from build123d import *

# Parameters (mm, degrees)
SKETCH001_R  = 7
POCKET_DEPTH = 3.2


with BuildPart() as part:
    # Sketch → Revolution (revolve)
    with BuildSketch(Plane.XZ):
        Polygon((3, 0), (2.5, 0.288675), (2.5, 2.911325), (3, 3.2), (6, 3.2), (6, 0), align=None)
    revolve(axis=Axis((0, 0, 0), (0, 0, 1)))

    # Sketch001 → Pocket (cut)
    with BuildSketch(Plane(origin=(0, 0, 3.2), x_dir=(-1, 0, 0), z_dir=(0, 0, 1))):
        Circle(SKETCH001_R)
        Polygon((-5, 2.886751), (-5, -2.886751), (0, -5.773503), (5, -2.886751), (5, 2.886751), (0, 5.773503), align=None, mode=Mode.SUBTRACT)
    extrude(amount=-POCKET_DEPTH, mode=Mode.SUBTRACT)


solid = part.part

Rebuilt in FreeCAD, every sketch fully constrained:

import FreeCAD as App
import Part
import Sketcher

V = App.Vector
Q = App.Units.Quantity

doc = App.newDocument("Part")
body = doc.addObject("PartDesign::Body", "Body")

# Sketch on XZ plane
sketch1 = body.newObject("Sketcher::SketchObject", "Sketch")
sketch1.AttachmentSupport = (doc.getObject("XZ_Plane"), [""])
sketch1.MapMode = "FlatFace"
sketch1.addGeometry(Part.LineSegment(V(2.5, 0.288675, 0), V(3, 0, 0)), False)
sketch1.addGeometry(Part.LineSegment(V(3, 0, 0), V(6, 0, 0)), False)
sketch1.addGeometry(Part.LineSegment(V(6, 0, 0), V(6, 3.2, 0)), False)
sketch1.addGeometry(Part.LineSegment(V(6, 3.2, 0), V(3, 3.2, 0)), False)
sketch1.addGeometry(Part.LineSegment(V(3, 3.2, 0), V(2.5, 2.911325, 0)), False)
sketch1.addGeometry(Part.LineSegment(V(2.5, 2.911325, 0), V(2.5, 0.288675, 0)), False)
sketch1.addConstraint(Sketcher.Constraint("Coincident", 0, 2, 1, 1))
sketch1.addConstraint(Sketcher.Constraint("Coincident", 1, 2, 2, 1))
sketch1.addConstraint(Sketcher.Constraint("Coincident", 2, 2, 3, 1))
sketch1.addConstraint(Sketcher.Constraint("Coincident", 3, 2, 4, 1))
sketch1.addConstraint(Sketcher.Constraint("Coincident", 4, 2, 5, 1))
sketch1.addConstraint(Sketcher.Constraint("Coincident", 5, 2, 0, 1))
sketch1.addConstraint(Sketcher.Constraint("Horizontal", 1))
sketch1.addConstraint(Sketcher.Constraint("Vertical", 2))
sketch1.addConstraint(Sketcher.Constraint("Horizontal", 3))
sketch1.addConstraint(Sketcher.Constraint("Vertical", 5))
sketch1.addConstraint(Sketcher.Constraint("PointOnObject", 0, 2, -1))
sketch1.addConstraint(Sketcher.Constraint("Vertical", 0, 2, 3, 2))
sketch1.addConstraint(Sketcher.Constraint("Equal", 0, 4))
sketch1.addConstraint(Sketcher.Constraint("DistanceX", 1, 1, 1, 2, 3.0))
sketch1.addConstraint(Sketcher.Constraint("Angle", 0, Q("-29.999988 deg")))
sketch1.addConstraint(Sketcher.Constraint("DistanceY", 2, 1, 2, 2, 3.2))
sketch1.addConstraint(Sketcher.Constraint("DistanceX", -1, 1, 0, 2, 3.0))
sketch1.addConstraint(Sketcher.Constraint("DistanceX", -1, 1, 4, 2, 2.5))
revolution = body.newObject("PartDesign::Revolution", "Revolution")
revolution.Profile = sketch1
revolution.ReferenceAxis = (sketch1, ["V_Axis"])
revolution.Angle = 360

# Sketch on XY plane
sketch2 = body.newObject("Sketcher::SketchObject", "Sketch001")
sketch2.AttachmentSupport = (doc.getObject("XY_Plane"), [""])
sketch2.MapMode = "FlatFace"
sketch2.AttachmentOffset = App.Placement(V(0, 0, 3.2), App.Rotation())
sketch2.addGeometry(Part.Circle(V(0, 0, 0), V(0, 0, 1), 7), False)
sketch2.addGeometry(Part.LineSegment(V(5, 2.886751, 0), V(5, -2.886751, 0)), False)
sketch2.addGeometry(Part.LineSegment(V(5, -2.886751, 0), V(0, -5.773503, 0)), False)
sketch2.addGeometry(Part.LineSegment(V(0, -5.773503, 0), V(-5, -2.886751, 0)), False)
sketch2.addGeometry(Part.LineSegment(V(-5, -2.886751, 0), V(-5, 2.886751, 0)), False)
sketch2.addGeometry(Part.LineSegment(V(-5, 2.886751, 0), V(0, 5.773503, 0)), False)
sketch2.addGeometry(Part.LineSegment(V(0, 5.773503, 0), V(5, 2.886751, 0)), False)
sketch2.addConstraint(Sketcher.Constraint("Coincident", 1, 2, 2, 1))
sketch2.addConstraint(Sketcher.Constraint("Coincident", 2, 2, 3, 1))
sketch2.addConstraint(Sketcher.Constraint("Coincident", 3, 2, 4, 1))
sketch2.addConstraint(Sketcher.Constraint("Coincident", 4, 2, 5, 1))
sketch2.addConstraint(Sketcher.Constraint("Coincident", 5, 2, 6, 1))
sketch2.addConstraint(Sketcher.Constraint("Coincident", 6, 2, 1, 1))
sketch2.addConstraint(Sketcher.Constraint("Vertical", 1))
sketch2.addConstraint(Sketcher.Constraint("Vertical", 4))
sketch2.addConstraint(Sketcher.Constraint("Coincident", 0, 3, -1, 1))
sketch2.addConstraint(Sketcher.Constraint("Symmetric", 1, 2, 4, 2, -1, 1))
sketch2.addConstraint(Sketcher.Constraint("Symmetric", 2, 2, 5, 2, -1, 1))
sketch2.addConstraint(Sketcher.Constraint("PointOnObject", 2, 2, -2))
sketch2.addConstraint(Sketcher.Constraint("Parallel", 3, 6))
sketch2.addConstraint(Sketcher.Constraint("Horizontal", 1, 2, 3, 2))
sketch2.addConstraint(Sketcher.Constraint("Diameter", 0, 14.0))
sketch2.addConstraint(Sketcher.Constraint("Angle", 2, Q("-149.999994 deg")))
sketch2.addConstraint(Sketcher.Constraint("DistanceX", -1, 1, 1, 2, 5.0))
sketch2.addConstraint(Sketcher.Constraint("DistanceY", 1, 2, 1, 1, 5.773502))
pocket1 = body.newObject("PartDesign::Pocket", "Pocket")
pocket1.Profile = sketch2
pocket1.Length = 3.2

doc.recompute()
